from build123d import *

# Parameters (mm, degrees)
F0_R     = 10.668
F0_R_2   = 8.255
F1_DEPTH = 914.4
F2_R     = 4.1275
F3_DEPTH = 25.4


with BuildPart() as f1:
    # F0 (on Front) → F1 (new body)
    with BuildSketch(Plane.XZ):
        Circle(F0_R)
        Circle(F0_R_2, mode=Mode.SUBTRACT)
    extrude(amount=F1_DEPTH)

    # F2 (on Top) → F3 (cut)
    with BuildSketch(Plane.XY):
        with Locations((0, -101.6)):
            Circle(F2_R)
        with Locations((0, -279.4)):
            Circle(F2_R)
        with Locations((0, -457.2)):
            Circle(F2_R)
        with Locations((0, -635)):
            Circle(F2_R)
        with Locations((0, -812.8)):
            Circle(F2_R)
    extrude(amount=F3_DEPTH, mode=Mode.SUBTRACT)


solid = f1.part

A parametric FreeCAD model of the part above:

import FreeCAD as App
import Part
import Sketcher
Q = App.Units.Quantity

doc = App.newDocument("Part")
body = doc.addObject("PartDesign::Body", "Body")

# Sketch on XZ plane
sketch1 = body.newObject("Sketcher::SketchObject", "Sketch")
sketch1.AttachmentSupport = (doc.getObject("XZ_Plane"), [""])
sketch1.MapMode = "FlatFace"
sketch1.addGeometry([
    Part.Circle(App.Vector(0, 0, 0), App.Vector(0, 0, 1), 11),
    Part.Circle(App.Vector(0, 0, 0), App.Vector(0, 0, 1), 8),
], False)
sketch1.addConstraint([
    Sketcher.Constraint("Coincident", 0, 3, -1, 1),
    Sketcher.Constraint("Coincident", 1, 3, -1, 1),
    Sketcher.Constraint("Diameter", 0, Q("0.84 in")),
    Sketcher.Constraint("Diameter", 1, Q("0.65 in")),
])
pad1 = body.newObject("PartDesign::Pad", "Pad")
pad1.Profile = sketch1
pad1.Length = Q("36 in")

# Sketch on XY plane
sketch2 = body.newObject("Sketcher::SketchObject", "Sketch001")
sketch2.AttachmentSupport = (doc.getObject("XY_Plane"), [""])
sketch2.MapMode = "FlatFace"
sketch2.addGeometry([
    Part.Circle(App.Vector(0, -101.6, 0), App.Vector(0, 0, 1), 4.1),  # 0
    Part.Circle(App.Vector(0, -279.4, 0), App.Vector(0, 0, 1), 4.1),  # 1
    Part.Circle(App.Vector(0, -457.2, 0), App.Vector(0, 0, 1), 4.1),  # 2
    Part.Circle(App.Vector(0, -635, 0), App.Vector(0, 0, 1), 4.1),  # 3
    Part.Circle(App.Vector(0, -812.8, 0), App.Vector(0, 0, 1), 4.1),  # 4
], False)
sketch2.addConstraint([
    Sketcher.Constraint("Equal", 0, 1),
    Sketcher.Constraint("Equal", 1, 2),
    Sketcher.Constraint("Equal", 2, 3),
    Sketcher.Constraint("Equal", 3, 4),
    Sketcher.Constraint("PointOnObject", 0, 3, -2),
    Sketcher.Constraint("PointOnObject", 1, 3, -2),
    Sketcher.Constraint("PointOnObject", 2, 3, -2),
    Sketcher.Constraint("PointOnObject", 3, 3, -2),
    Sketcher.Constraint("PointOnObject", 4, 3, -2),
    Sketcher.Constraint("Diameter", 0, Q("0.325 in")),
    Sketcher.Constraint("DistanceY", 0, 3, -1, 1, Q("4 in")),
    Sketcher.Constraint("DistanceY", 1, 3, -1, 1, Q("11 in")),
    Sketcher.Constraint("DistanceY", 2, 3, -1, 1, Q("18 in")),
    Sketcher.Constraint("DistanceY", 3, 3, -1, 1, Q("25 in")),
    Sketcher.Constraint("DistanceY", 4, 3, -1, 1, Q("32 in")),
])
pocket1 = body.newObject("PartDesign::Pocket", "Pocket")
pocket1.Profile = sketch2
pocket1.Length = Q("1 in")
pocket1.Reversed = True

doc.recompute()
